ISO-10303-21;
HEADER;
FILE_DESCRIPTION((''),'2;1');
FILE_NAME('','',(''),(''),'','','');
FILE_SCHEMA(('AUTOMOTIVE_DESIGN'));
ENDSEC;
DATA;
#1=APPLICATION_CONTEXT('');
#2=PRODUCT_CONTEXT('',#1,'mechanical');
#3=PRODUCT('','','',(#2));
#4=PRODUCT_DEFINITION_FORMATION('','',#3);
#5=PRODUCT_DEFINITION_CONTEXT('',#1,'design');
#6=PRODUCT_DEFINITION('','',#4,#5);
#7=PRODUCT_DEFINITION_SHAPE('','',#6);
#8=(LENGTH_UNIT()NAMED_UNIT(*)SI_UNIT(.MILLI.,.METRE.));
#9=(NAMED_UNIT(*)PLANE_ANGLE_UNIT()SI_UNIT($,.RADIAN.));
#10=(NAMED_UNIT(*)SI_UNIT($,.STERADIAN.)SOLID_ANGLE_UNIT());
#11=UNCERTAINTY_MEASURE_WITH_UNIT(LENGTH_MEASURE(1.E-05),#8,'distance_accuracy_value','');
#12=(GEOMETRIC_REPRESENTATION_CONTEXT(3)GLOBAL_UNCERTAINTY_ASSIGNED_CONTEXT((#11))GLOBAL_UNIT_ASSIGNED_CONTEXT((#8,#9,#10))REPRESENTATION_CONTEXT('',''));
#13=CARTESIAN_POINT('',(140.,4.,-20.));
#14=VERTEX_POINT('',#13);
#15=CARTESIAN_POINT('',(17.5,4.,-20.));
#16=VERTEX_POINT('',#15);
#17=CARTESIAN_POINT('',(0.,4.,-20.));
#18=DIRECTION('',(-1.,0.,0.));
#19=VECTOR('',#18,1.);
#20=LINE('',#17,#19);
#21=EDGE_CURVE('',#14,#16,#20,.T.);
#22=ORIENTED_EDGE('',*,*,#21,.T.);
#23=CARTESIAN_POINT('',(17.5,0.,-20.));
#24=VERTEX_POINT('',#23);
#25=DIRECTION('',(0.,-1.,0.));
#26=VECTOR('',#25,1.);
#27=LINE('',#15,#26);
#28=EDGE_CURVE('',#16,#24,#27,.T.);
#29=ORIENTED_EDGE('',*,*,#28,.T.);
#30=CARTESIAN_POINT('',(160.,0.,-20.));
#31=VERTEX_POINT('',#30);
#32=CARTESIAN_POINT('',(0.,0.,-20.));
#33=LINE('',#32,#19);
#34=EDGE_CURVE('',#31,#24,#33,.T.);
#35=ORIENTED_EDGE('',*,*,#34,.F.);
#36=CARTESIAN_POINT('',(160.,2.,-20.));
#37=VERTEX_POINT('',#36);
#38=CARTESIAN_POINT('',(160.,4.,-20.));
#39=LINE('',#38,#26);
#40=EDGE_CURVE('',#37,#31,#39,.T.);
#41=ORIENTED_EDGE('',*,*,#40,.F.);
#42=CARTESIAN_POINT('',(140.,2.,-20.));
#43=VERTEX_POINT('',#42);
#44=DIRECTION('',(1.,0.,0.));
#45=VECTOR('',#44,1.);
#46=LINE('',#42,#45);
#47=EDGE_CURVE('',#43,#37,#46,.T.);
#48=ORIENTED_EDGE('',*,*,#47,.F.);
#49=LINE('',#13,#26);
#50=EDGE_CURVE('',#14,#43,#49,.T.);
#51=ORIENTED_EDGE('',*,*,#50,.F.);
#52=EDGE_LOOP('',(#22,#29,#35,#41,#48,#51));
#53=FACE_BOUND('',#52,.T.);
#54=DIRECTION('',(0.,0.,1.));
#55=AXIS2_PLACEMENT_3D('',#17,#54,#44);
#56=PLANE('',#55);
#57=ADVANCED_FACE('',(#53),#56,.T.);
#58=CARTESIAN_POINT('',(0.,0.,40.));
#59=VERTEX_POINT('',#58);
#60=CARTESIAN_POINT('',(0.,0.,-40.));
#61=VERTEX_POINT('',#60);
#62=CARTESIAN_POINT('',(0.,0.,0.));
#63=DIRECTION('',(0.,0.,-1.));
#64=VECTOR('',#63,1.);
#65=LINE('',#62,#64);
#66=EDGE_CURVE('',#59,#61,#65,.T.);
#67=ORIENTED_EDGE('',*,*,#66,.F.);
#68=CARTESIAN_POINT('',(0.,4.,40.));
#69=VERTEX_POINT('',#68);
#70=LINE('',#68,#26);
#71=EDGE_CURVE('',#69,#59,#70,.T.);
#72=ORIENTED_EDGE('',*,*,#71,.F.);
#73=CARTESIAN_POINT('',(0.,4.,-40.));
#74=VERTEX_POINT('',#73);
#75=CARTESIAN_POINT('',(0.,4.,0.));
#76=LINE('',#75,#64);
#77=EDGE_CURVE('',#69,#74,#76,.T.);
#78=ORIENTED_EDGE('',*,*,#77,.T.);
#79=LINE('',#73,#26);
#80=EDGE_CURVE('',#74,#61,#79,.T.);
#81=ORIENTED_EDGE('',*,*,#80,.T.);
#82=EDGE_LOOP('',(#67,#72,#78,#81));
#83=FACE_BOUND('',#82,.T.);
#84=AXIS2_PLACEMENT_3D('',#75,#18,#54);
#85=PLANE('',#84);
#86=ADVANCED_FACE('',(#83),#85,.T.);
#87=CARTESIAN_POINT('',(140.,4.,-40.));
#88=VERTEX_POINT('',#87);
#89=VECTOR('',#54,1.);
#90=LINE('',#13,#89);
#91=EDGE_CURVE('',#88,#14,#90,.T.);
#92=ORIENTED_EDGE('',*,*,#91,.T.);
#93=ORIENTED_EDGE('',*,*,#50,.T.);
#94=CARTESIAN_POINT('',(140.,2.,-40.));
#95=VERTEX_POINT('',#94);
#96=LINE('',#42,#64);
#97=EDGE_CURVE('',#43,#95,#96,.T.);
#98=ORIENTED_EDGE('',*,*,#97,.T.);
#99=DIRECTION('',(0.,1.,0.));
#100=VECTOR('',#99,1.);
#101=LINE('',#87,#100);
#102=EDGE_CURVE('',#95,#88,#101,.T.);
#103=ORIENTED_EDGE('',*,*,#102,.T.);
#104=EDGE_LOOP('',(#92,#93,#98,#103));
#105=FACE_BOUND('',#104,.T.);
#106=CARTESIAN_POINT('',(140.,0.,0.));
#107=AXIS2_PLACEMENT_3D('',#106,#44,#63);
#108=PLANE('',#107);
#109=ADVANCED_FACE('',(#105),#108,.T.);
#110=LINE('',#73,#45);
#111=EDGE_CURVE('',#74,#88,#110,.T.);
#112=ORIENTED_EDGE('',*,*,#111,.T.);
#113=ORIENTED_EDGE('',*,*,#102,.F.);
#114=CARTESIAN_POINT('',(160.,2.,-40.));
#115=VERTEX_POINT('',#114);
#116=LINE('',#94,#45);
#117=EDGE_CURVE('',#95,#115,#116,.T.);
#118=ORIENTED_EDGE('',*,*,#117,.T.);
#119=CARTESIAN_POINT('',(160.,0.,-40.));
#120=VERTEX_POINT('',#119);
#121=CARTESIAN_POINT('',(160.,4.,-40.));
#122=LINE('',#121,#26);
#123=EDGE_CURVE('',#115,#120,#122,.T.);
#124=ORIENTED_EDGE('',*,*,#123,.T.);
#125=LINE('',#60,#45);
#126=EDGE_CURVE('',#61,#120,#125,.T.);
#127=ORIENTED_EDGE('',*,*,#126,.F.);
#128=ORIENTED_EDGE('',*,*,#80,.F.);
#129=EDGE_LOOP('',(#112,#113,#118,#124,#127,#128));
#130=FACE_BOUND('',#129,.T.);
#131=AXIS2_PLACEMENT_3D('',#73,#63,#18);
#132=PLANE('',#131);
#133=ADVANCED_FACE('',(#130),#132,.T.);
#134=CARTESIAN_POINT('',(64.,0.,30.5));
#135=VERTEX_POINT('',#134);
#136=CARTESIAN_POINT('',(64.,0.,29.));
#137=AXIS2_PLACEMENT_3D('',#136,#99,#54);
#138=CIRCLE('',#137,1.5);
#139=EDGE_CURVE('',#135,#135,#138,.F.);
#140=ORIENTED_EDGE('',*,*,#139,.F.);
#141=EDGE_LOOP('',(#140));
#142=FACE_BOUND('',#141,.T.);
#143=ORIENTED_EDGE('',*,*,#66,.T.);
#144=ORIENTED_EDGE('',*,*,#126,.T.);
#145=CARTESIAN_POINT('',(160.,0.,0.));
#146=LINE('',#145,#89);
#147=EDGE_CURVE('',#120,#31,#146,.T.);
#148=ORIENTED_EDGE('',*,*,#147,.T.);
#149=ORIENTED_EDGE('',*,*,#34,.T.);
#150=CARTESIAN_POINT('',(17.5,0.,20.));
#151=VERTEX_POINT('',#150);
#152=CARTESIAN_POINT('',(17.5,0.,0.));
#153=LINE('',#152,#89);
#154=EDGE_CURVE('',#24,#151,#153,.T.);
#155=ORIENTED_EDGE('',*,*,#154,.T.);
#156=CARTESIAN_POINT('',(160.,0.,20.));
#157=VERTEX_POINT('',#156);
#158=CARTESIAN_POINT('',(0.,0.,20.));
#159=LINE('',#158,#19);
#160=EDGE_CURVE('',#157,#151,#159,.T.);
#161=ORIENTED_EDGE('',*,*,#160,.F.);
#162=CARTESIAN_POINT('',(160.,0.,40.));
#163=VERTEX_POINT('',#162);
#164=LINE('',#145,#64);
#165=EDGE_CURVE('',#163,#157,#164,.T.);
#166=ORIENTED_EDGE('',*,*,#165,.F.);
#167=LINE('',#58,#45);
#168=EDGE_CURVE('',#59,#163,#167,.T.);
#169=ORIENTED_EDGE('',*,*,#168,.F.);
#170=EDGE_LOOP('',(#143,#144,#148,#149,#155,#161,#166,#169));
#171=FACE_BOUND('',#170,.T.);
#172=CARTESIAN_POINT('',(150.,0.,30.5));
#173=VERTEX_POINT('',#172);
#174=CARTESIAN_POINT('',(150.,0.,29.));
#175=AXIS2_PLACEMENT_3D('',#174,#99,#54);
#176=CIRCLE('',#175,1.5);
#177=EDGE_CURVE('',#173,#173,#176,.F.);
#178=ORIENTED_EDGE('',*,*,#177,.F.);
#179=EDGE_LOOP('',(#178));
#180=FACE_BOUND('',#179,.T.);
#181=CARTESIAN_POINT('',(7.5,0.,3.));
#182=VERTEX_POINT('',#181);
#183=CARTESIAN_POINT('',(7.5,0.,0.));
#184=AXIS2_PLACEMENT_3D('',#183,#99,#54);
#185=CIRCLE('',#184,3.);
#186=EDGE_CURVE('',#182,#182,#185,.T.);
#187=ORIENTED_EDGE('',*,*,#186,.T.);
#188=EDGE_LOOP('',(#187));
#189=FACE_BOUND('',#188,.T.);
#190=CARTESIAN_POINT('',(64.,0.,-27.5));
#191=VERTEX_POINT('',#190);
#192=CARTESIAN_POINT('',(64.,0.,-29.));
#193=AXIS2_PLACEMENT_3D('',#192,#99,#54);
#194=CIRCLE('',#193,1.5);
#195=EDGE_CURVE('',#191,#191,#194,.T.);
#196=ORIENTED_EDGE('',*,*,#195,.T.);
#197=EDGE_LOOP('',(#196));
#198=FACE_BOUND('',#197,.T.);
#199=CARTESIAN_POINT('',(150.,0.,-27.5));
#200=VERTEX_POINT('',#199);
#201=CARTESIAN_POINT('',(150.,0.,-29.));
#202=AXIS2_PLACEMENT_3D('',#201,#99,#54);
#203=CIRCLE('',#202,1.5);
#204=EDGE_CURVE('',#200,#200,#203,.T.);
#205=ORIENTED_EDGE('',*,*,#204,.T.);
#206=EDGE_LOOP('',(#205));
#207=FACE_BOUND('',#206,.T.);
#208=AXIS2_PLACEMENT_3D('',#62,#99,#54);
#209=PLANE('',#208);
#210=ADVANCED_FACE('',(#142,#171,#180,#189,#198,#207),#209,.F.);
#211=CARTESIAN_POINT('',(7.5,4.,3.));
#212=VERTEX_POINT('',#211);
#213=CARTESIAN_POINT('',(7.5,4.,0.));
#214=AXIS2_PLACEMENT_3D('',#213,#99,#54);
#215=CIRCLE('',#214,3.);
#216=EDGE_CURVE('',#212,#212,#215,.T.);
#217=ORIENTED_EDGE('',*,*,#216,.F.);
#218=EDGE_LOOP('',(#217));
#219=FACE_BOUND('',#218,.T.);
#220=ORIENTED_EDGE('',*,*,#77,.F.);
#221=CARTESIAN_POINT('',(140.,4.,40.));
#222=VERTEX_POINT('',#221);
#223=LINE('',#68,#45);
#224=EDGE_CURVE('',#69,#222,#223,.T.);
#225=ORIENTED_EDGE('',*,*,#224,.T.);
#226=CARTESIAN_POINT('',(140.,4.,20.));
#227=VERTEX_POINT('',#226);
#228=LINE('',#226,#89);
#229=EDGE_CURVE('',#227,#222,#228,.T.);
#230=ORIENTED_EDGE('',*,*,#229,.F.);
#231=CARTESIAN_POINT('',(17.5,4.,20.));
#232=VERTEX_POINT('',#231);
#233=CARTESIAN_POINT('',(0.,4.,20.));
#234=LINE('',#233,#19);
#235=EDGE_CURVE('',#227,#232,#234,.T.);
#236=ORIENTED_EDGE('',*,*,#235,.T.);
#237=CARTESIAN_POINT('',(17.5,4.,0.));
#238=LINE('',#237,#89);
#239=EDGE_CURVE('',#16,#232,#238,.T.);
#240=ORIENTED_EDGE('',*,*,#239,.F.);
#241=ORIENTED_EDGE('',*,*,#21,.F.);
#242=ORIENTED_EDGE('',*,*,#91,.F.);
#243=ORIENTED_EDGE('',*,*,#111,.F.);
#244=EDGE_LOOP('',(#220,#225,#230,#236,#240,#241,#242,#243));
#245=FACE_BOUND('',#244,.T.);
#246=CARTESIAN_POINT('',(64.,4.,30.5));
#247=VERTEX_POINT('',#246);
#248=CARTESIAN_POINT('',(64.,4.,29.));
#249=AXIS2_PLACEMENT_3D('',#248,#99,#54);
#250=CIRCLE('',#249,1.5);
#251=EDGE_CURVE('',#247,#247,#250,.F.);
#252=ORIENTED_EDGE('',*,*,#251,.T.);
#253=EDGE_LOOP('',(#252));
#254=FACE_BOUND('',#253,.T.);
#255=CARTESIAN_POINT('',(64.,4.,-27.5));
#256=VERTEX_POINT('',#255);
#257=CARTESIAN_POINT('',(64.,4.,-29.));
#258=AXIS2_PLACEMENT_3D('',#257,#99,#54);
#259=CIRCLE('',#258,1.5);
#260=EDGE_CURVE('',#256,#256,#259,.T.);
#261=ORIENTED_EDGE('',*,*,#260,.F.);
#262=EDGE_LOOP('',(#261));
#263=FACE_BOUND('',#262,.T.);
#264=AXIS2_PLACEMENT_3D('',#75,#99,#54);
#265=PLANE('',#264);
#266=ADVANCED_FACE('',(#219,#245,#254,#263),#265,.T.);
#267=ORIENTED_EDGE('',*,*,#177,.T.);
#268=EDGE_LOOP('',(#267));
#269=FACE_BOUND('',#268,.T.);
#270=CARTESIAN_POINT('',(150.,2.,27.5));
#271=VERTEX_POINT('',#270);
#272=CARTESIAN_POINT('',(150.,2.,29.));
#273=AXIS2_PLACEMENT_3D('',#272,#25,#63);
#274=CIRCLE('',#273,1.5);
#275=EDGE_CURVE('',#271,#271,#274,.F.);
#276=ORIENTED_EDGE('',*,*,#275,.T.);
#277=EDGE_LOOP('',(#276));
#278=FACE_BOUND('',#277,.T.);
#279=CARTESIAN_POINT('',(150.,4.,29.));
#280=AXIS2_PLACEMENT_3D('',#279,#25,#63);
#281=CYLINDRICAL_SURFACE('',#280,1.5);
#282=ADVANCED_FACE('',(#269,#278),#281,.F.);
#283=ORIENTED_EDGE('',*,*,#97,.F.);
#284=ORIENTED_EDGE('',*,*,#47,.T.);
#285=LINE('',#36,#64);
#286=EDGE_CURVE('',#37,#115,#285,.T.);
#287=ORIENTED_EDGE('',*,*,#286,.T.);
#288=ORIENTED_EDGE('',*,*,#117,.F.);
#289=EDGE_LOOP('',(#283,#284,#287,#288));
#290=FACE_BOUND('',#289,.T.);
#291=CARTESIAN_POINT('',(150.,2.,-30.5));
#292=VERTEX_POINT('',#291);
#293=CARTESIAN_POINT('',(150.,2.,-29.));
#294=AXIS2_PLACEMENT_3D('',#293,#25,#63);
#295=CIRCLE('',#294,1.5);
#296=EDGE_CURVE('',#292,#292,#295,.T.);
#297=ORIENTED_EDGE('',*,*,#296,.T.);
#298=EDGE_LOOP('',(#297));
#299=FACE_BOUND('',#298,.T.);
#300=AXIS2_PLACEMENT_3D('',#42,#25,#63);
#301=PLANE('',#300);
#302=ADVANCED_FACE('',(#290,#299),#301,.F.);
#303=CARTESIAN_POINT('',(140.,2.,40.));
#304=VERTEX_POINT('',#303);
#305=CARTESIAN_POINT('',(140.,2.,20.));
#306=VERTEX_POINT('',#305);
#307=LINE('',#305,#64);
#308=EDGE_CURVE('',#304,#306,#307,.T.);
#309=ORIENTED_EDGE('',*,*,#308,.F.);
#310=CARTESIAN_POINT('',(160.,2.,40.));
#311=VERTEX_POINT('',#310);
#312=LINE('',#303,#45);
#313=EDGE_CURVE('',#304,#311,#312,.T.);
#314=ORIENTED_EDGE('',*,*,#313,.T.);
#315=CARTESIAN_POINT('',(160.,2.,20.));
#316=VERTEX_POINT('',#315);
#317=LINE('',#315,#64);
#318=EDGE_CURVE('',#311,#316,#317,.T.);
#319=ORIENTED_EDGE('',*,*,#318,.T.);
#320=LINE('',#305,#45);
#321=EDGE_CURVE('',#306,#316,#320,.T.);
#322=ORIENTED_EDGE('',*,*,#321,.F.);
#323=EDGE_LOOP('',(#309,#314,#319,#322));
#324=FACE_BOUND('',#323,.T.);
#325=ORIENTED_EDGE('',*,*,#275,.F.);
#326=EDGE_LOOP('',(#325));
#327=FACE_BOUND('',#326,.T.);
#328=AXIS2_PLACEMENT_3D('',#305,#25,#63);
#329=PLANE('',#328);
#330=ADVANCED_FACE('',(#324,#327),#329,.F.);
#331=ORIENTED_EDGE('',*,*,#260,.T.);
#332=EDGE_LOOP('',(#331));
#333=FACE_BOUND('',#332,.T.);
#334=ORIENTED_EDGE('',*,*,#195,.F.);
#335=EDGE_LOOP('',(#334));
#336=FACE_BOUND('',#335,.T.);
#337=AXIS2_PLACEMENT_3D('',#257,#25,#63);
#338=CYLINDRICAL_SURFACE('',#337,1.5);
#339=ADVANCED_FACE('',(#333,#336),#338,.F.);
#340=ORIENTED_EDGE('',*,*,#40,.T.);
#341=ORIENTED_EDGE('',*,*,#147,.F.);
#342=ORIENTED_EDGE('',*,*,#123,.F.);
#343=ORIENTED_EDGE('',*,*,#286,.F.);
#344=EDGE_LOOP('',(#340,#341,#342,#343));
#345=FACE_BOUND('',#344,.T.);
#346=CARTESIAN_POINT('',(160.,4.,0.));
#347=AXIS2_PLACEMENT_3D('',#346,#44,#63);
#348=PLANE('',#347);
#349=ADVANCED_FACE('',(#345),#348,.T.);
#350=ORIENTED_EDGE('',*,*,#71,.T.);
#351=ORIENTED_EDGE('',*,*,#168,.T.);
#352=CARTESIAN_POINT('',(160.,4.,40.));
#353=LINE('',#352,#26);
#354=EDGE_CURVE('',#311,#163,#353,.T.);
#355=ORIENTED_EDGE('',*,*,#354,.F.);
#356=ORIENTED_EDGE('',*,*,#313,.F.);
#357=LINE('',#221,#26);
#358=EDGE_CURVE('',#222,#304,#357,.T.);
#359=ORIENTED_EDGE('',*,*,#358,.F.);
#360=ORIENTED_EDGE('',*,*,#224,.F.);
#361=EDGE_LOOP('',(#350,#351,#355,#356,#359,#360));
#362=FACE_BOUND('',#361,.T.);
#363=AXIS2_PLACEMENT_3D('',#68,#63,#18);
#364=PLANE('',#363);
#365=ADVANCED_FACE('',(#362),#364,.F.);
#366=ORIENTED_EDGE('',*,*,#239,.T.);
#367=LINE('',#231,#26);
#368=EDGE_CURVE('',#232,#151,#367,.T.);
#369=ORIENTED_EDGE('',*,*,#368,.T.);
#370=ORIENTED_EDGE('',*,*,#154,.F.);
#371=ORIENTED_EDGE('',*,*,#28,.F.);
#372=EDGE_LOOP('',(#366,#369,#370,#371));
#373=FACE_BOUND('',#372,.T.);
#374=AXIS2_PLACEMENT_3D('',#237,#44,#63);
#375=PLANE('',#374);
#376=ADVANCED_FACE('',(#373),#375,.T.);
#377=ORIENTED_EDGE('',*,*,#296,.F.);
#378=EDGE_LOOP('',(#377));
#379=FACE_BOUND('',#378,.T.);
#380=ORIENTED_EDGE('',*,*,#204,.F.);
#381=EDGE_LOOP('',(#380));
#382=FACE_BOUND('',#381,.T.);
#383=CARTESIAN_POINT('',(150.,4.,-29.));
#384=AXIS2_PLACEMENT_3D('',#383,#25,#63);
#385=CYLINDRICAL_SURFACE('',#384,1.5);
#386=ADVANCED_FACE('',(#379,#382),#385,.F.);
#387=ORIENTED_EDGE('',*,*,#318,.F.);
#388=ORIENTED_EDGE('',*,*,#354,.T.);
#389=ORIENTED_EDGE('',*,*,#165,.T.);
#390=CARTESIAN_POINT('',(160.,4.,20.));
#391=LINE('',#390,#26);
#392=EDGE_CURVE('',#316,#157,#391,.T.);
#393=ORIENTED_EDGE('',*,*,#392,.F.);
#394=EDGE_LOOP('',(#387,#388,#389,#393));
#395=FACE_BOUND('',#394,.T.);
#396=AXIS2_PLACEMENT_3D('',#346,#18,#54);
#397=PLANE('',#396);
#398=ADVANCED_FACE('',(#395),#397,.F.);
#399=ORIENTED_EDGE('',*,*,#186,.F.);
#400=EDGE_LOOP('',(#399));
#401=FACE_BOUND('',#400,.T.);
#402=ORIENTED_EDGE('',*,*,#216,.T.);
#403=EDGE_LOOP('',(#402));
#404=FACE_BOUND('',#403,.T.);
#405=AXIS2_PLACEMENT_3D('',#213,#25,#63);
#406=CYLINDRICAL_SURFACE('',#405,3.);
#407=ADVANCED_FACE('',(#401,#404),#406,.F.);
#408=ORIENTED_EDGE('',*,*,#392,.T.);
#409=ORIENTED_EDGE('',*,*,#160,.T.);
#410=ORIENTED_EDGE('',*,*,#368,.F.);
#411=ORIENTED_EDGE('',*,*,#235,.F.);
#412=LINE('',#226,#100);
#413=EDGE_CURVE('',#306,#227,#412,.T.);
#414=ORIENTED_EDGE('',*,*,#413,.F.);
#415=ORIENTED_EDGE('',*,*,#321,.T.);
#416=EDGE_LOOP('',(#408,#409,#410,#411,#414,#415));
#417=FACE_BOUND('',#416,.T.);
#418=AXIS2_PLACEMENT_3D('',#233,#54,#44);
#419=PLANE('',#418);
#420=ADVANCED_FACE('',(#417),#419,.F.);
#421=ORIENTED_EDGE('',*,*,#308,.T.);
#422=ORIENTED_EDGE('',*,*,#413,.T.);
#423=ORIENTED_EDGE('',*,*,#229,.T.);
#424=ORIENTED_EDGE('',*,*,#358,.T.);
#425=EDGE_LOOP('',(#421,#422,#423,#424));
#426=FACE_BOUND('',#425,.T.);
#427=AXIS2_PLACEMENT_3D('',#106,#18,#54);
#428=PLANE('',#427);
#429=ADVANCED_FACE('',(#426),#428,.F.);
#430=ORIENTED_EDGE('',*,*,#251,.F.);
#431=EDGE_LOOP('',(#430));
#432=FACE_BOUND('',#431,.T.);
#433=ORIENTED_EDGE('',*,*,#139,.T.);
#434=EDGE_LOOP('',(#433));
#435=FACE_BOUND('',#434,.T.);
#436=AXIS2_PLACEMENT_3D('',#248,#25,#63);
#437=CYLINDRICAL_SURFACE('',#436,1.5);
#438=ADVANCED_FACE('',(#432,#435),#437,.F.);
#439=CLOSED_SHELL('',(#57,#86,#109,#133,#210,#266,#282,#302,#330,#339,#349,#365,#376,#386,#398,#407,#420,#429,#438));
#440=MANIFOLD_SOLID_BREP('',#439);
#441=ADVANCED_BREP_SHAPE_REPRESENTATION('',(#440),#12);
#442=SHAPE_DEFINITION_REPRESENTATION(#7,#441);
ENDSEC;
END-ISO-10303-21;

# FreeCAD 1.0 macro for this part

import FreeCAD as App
import Part
import Sketcher

V = App.Vector


def add_polygon(sketch, points):
    """Adds a closed chain of lines whose ends are joined by coincident constraints."""
    first, n = sketch.GeometryCount, len(points)
    for a, b in zip(points, points[1:] + points[:1]):
        sketch.addGeometry(Part.LineSegment(App.Vector(*a, 0), App.Vector(*b, 0)), False)
    for i in range(n):
        sketch.addConstraint(Sketcher.Constraint("Coincident", first + i, 2, first + (i + 1) % n, 1))

doc = App.newDocument("Part")
params = doc.addObject("Spreadsheet::Sheet", "Params")
for row, (alias, value) in enumerate([
    ("sketch1_diameter", "6 mm"),
    ("sketch1_diameter2", "3 mm"),
    ("sketch1_width", "160 mm"),
    ("sketch1_height", "20 mm"),
    ("sketch1_height2", "40 mm"),
    ("pad1_length", "4 mm"),
    ("sketch2_width", "2 mm"),
    ("sketch2_height", "20 mm"),
    ("pocket1_length", "20 mm"),
], start=1):
    params.set(f"A{row}", alias)
    params.set(f"B{row}", "=" + value)
    params.setAlias(f"B{row}", alias)

body = doc.addObject("PartDesign::Body", "Body")

sketch1 = body.newObject("Sketcher::SketchObject", "Sketch")
sketch1.AttachmentSupport = (doc.getObject("XZ_Plane"), [""])
sketch1.MapMode = "FlatFace"
add_polygon(sketch1, [(0, 40), (160, 40), (160, 20), (17.5, 20), (17.5, -20), (160, -20), (160, -40), (0, -40)])
sketch1.addGeometry(Part.Circle(V(7.5, 0, 0), V(0, 0, 1), 3), False)
sketch1.addGeometry(Part.Circle(V(64, 29, 0), V(0, 0, 1), 1.5), False)
sketch1.addGeometry(Part.Circle(V(150, 29, 0), V(0, 0, 1), 1.5), False)
sketch1.addGeometry(Part.Circle(V(150, -29, 0), V(0, 0, 1), 1.5), False)
sketch1.addGeometry(Part.Circle(V(64, -29, 0), V(0, 0, 1), 1.5), False)
sketch1.addConstraint(Sketcher.Constraint("Horizontal", 0))
sketch1.addConstraint(Sketcher.Constraint("Vertical", 1))
sketch1.addConstraint(Sketcher.Constraint("Horizontal", 2))
sketch1.addConstraint(Sketcher.Constraint("Vertical", 3))
sketch1.addConstraint(Sketcher.Constraint("Horizontal", 4))
sketch1.addConstraint(Sketcher.Constraint("Vertical", 5))
sketch1.addConstraint(Sketcher.Constraint("Horizontal", 6))
sketch1.addConstraint(Sketcher.Constraint("Vertical", 7))
sketch1.addConstraint(Sketcher.Constraint("Equal", 9, 10))
sketch1.addConstraint(Sketcher.Constraint("Equal", 10, 11))
sketch1.addConstraint(Sketcher.Constraint("Equal", 11, 12))
sketch1.addConstraint(Sketcher.Constraint("Symmetric", 6, 2, 7, 2, -1, 1))
sketch1.addConstraint(Sketcher.Constraint("Symmetric", 10, 3, 11, 3, -1))
sketch1.addConstraint(Sketcher.Constraint("Symmetric", 9, 3, 12, 3, -1))
sketch1.addConstraint(Sketcher.Constraint("Symmetric", 1, 2, 4, 2, -1))
sketch1.addConstraint(Sketcher.Constraint("PointOnObject", 8, 3, -1))
sketch1.addConstraint(Sketcher.Constraint("Horizontal", 9, 3, 10, 3))
sketch1.addConstraint(Sketcher.Constraint("Diameter", 8, 6.0))
sketch1.addConstraint(Sketcher.Constraint("Diameter", 9, 3.0))
sketch1.addConstraint(Sketcher.Constraint("DistanceX", 0, 1, 0, 2, 160.0))
sketch1.addConstraint(Sketcher.Constraint("DistanceY", 1, 2, 1, 1, 20.0))
sketch1.addConstraint(Sketcher.Constraint("DistanceY", 3, 2, 3, 1, 40.0))
sketch1.addConstraint(Sketcher.Constraint("DistanceX", 2, 2, 2, 1, 142.5))
sketch1.addConstraint(Sketcher.Constraint("DistanceX", -1, 1, 9, 3, 64.0))
sketch1.addConstraint(Sketcher.Constraint("DistanceY", -1, 1, 9, 3, 29.0))
sketch1.addConstraint(Sketcher.Constraint("DistanceX", -1, 1, 10, 3, 150.0))
sketch1.addConstraint(Sketcher.Constraint("DistanceX", 8, 3, 2, 2, 10.0))
sketch1.setExpression("Constraints[25]", "Params.sketch1_diameter")
sketch1.setExpression("Constraints[26]", "Params.sketch1_diameter2")
sketch1.setExpression("Constraints[27]", "Params.sketch1_width")
sketch1.setExpression("Constraints[28]", "Params.sketch1_height")
sketch1.setExpression("Constraints[29]", "Params.sketch1_height2")
pad1 = body.newObject("PartDesign::Pad", "Pad")
pad1.Profile = sketch1
pad1.setExpression("Length", "Params.pad1_length")
pad1.Reversed = True

sketch2 = body.newObject("Sketcher::SketchObject", "Sketch001")
sketch2.AttachmentSupport = (doc.getObject("YZ_Plane"), [""])
sketch2.MapMode = "FlatFace"
sketch2.AttachmentOffset = App.Placement(V(0, 0, 160), App.Rotation())
add_polygon(sketch2, [(4, -20), (2, -20), (2, -40), (4, -40)])
add_polygon(sketch2, [(4, 40), (2, 40), (2, 20), (4, 20)])
sketch2.addConstraint(Sketcher.Constraint("Horizontal", 0))
sketch2.addConstraint(Sketcher.Constraint("Vertical", 1))
sketch2.addConstraint(Sketcher.Constraint("Horizontal", 2))
sketch2.addConstraint(Sketcher.Constraint("Vertical", 3))
sketch2.addConstraint(Sketcher.Constraint("Horizontal", 4))
sketch2.addConstraint(Sketcher.Constraint("Vertical", 5))
sketch2.addConstraint(Sketcher.Constraint("Horizontal", 6))
sketch2.addConstraint(Sketcher.Constraint("Vertical", 7))
sketch2.addConstraint(Sketcher.Constraint("Symmetric", 1, 2, 4, 2, -1))
sketch2.addConstraint(Sketcher.Constraint("Symmetric", 3, 2, 6, 2, -1))
sketch2.addConstraint(Sketcher.Constraint("DistanceX", 0, 2, 0, 1, 2.0))
sketch2.addConstraint(Sketcher.Constraint("DistanceY", 1, 2, 1, 1, 20.0))
sketch2.addConstraint(Sketcher.Constraint("DistanceX", -1, 1, 0, 2, 2.0))
sketch2.addConstraint(Sketcher.Constraint("DistanceY", 0, 2, -1, 1, 20.0))
sketch2.setExpression("Constraints[18]", "Params.sketch2_width")
sketch2.setExpression("Constraints[19]", "Params.sketch2_height")
pocket1 = body.newObject("PartDesign::Pocket", "Pocket")
pocket1.Profile = sketch2
pocket1.setExpression("Length", "Params.pocket1_length")

doc.recompute()
